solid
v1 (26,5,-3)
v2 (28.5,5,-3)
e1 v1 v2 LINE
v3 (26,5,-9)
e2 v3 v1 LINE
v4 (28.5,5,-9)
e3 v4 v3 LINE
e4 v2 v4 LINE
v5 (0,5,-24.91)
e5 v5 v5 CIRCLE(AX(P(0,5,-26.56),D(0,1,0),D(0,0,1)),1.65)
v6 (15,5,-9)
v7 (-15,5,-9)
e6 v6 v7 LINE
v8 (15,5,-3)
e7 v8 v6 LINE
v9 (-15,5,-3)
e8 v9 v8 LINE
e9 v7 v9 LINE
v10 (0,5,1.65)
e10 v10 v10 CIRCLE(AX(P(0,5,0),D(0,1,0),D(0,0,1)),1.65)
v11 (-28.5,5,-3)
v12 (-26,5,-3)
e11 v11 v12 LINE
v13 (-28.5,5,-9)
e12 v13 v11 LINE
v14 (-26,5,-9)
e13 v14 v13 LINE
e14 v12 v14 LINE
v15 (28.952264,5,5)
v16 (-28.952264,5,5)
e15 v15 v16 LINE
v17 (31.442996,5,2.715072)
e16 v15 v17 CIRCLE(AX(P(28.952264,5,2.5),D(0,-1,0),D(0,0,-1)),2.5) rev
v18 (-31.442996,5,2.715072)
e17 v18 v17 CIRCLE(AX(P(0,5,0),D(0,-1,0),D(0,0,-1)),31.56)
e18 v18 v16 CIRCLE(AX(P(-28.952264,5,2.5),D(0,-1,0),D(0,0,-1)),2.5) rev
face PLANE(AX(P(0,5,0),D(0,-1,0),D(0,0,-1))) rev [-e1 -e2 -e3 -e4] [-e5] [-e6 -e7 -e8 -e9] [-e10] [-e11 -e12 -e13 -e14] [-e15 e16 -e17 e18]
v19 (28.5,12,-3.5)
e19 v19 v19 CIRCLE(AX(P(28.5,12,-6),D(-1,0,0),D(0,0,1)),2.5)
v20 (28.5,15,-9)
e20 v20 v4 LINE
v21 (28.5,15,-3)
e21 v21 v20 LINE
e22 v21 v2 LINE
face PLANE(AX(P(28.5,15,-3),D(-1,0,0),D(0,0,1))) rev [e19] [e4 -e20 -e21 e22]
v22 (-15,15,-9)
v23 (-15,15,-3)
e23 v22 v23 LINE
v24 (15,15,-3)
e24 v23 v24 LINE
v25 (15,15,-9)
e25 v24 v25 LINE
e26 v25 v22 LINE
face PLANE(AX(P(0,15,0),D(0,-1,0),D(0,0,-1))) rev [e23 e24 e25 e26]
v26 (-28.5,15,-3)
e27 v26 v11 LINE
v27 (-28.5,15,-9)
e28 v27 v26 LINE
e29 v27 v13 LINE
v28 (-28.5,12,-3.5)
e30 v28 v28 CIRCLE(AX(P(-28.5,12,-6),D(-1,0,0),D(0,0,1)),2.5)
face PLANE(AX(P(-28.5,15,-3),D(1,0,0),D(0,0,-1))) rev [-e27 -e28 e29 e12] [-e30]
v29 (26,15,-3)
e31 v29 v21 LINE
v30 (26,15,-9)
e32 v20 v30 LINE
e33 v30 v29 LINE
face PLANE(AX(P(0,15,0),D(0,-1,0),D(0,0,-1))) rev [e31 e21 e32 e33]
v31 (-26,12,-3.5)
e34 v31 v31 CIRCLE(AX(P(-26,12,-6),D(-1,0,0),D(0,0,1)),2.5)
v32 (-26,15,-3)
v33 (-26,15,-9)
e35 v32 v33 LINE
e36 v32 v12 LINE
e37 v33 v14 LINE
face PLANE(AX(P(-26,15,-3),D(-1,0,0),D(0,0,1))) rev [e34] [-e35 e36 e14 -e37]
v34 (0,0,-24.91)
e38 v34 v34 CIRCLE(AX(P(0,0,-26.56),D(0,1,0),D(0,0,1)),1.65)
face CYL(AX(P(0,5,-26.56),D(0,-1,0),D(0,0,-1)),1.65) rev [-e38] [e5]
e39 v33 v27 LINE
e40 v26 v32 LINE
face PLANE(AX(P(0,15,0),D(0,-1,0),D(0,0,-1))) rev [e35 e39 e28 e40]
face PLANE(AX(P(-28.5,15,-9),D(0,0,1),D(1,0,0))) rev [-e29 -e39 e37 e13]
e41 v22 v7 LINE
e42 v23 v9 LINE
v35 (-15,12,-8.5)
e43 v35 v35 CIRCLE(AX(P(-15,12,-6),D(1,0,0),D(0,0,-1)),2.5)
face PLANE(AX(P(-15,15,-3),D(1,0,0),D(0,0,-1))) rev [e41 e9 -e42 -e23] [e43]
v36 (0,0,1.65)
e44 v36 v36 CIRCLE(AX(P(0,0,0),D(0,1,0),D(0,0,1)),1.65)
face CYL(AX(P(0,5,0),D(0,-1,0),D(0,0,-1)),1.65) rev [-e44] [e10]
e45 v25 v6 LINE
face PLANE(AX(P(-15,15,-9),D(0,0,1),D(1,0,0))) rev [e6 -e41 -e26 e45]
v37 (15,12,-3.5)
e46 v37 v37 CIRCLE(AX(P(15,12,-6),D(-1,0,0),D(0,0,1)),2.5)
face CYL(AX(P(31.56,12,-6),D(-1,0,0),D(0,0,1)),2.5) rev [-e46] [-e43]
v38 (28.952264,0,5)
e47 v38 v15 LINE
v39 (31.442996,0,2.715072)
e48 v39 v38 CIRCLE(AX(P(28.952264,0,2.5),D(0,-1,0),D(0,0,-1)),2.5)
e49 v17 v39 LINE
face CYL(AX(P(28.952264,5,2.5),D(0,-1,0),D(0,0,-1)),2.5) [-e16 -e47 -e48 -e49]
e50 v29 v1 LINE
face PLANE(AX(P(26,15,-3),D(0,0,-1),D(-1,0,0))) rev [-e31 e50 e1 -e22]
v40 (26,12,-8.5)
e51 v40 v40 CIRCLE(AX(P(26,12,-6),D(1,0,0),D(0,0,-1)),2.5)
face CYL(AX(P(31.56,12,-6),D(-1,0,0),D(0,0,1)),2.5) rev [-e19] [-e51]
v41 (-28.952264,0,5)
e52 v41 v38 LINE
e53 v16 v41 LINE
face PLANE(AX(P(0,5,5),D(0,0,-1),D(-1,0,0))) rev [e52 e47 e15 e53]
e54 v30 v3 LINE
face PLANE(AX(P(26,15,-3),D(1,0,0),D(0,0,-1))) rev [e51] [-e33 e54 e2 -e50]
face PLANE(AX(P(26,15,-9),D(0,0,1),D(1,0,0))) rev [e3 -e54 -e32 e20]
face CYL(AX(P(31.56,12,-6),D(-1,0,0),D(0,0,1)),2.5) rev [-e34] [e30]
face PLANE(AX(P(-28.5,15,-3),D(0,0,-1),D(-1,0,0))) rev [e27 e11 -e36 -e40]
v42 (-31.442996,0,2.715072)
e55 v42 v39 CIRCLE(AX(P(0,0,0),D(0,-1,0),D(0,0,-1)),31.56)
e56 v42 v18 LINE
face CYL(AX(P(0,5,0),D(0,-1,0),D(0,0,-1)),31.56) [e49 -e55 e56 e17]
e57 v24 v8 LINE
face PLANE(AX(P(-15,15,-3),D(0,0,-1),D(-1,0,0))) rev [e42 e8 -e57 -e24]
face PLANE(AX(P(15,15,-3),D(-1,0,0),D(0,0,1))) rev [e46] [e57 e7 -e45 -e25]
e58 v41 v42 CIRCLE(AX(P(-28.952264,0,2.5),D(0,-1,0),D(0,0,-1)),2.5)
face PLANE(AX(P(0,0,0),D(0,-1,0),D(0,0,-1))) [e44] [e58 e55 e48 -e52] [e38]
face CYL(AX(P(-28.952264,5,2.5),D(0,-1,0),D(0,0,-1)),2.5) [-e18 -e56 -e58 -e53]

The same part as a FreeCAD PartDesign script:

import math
import FreeCAD as App
import Part
import Sketcher

V = App.Vector


def edges_at(feature, points):
    """Names of the edges that pass closest to the given points."""
    edges = feature.Shape.Edges
    near = lambda p: min(range(len(edges)), key=lambda i: edges[i].distToShape(Part.Vertex(*p))[0])
    return sorted({f"Edge{near(p) + 1}" for p in points})

doc = App.newDocument("Part")
body = doc.addObject("PartDesign::Body", "Body")

sketch1 = body.newObject("Sketcher::SketchObject", "Sketch")
sketch1.AttachmentSupport = (doc.getObject("XZ_Plane"), [""])
sketch1.MapMode = "FlatFace"
sketch1.addGeometry(Part.ArcOfCircle(Part.Circle(V(0, 0, 0), V(0, 0, 1), 31.56), math.radians(170.884314), math.radians(369.115686)), False)
sketch1.addGeometry(Part.LineSegment(V(-31.161412, 5, 0), V(31.161412, 5, 0)), False)
sketch1.addGeometry(Part.Circle(V(0, 0, 0), V(0, 0, 1), 1.65), False)
sketch1.addGeometry(Part.Circle(V(0, -26.56, 0), V(0, 0, 1), 1.65), False)
sketch1.addConstraint(Sketcher.Constraint("Coincident", 0, 1, 1, 1))
sketch1.addConstraint(Sketcher.Constraint("Coincident", 1, 2, 0, 2))
sketch1.addConstraint(Sketcher.Constraint("Horizontal", 1))
sketch1.addConstraint(Sketcher.Constraint("Coincident", 0, 3, -1, 1))
sketch1.addConstraint(Sketcher.Constraint("Coincident", 2, 3, -1, 1))
sketch1.addConstraint(Sketcher.Constraint("Equal", 2, 3))
sketch1.addConstraint(Sketcher.Constraint("PointOnObject", 3, 3, -2))
sketch1.addConstraint(Sketcher.Constraint("Diameter", 2, 3.3))
sketch1.addConstraint(Sketcher.Constraint("Radius", 0, 31.56))
sketch1.addConstraint(Sketcher.Constraint("DistanceY", -1, 1, 0, 1, 5.0))
sketch1.addConstraint(Sketcher.Constraint("DistanceY", 3, 3, -1, 1, 26.56))
pad1 = body.newObject("PartDesign::Pad", "Pad")
pad1.Profile = sketch1
pad1.Length = 5
pad1.Reversed = True
doc.recompute()

fillet = body.newObject("PartDesign::Fillet", "Fillet")
fillet.Base = (pad1, edges_at(pad1, [(31.161, 2.5, 5), (-31.161, 2.5, 5)]))
fillet.Radius = 2.5

sketch2 = body.newObject("Sketcher::SketchObject", "Sketch001")
sketch2.AttachmentSupport = (doc.getObject("XZ_Plane"), [""])
sketch2.MapMode = "FlatFace"
sketch2.AttachmentOffset = App.Placement(V(0, 0, -5), App.Rotation())
sketch2.addGeometry(Part.LineSegment(V(-28.5, -9, 0), V(-28.5, -3, 0)), False)
sketch2.addGeometry(Part.LineSegment(V(-28.5, -3, 0), V(-26, -3, 0)), False)
sketch2.addGeometry(Part.LineSegment(V(-26, -3, 0), V(-26, -9, 0)), False)
sketch2.addGeometry(Part.LineSegment(V(-26, -9, 0), V(-28.5, -9, 0)), False)
sketch2.addGeometry(Part.LineSegment(V(26, -9, 0), V(26, -3, 0)), False)
sketch2.addGeometry(Part.LineSegment(V(26, -3, 0), V(28.5, -3, 0)), False)
sketch2.addGeometry(Part.LineSegment(V(28.5, -3, 0), V(28.5, -9, 0)), False)
sketch2.addGeometry(Part.LineSegment(V(28.5, -9, 0), V(26, -9, 0)), False)
sketch2.addGeometry(Part.LineSegment(V(-15, -9, 0), V(-15, -3, 0)), False)
sketch2.addGeometry(Part.LineSegment(V(-15, -3, 0), V(15, -3, 0)), False)
sketch2.addGeometry(Part.LineSegment(V(15, -3, 0), V(15, -9, 0)), False)
sketch2.addGeometry(Part.LineSegment(V(15, -9, 0), V(-15, -9, 0)), False)
sketch2.addConstraint(Sketcher.Constraint("Coincident", 0, 2, 1, 1))
sketch2.addConstraint(Sketcher.Constraint("Coincident", 1, 2, 2, 1))
sketch2.addConstraint(Sketcher.Constraint("Coincident", 2, 2, 3, 1))
sketch2.addConstraint(Sketcher.Constraint("Coincident", 3, 2, 0, 1))
sketch2.addConstraint(Sketcher.Constraint("Coincident", 4, 2, 5, 1))
sketch2.addConstraint(Sketcher.Constraint("Coincident", 5, 2, 6, 1))
sketch2.addConstraint(Sketcher.Constraint("Coincident", 6, 2, 7, 1))
sketch2.addConstraint(Sketcher.Constraint("Coincident", 7, 2, 4, 1))
sketch2.addConstraint(Sketcher.Constraint("Coincident", 8, 2, 9, 1))
sketch2.addConstraint(Sketcher.Constraint("Coincident", 9, 2, 10, 1))
sketch2.addConstraint(Sketcher.Constraint("Coincident", 10, 2, 11, 1))
sketch2.addConstraint(Sketcher.Constraint("Coincident", 11, 2, 8, 1))
sketch2.addConstraint(Sketcher.Constraint("Vertical", 0))
sketch2.addConstraint(Sketcher.Constraint("Horizontal", 1))
sketch2.addConstraint(Sketcher.Constraint("Vertical", 2))
sketch2.addConstraint(Sketcher.Constraint("Horizontal", 3))
sketch2.addConstraint(Sketcher.Constraint("Vertical", 4))
sketch2.addConstraint(Sketcher.Constraint("Horizontal", 5))
sketch2.addConstraint(Sketcher.Constraint("Vertical", 6))
sketch2.addConstraint(Sketcher.Constraint("Horizontal", 7))
sketch2.addConstraint(Sketcher.Constraint("Vertical", 8))
sketch2.addConstraint(Sketcher.Constraint("Horizontal", 9))
sketch2.addConstraint(Sketcher.Constraint("Vertical", 10))
sketch2.addConstraint(Sketcher.Constraint("Horizontal", 11))
sketch2.addConstraint(Sketcher.Constraint("Symmetric", 1, 2, 4, 2, -2))
sketch2.addConstraint(Sketcher.Constraint("Symmetric", 3, 2, 6, 2, -2))
sketch2.addConstraint(Sketcher.Constraint("Horizontal", 5, 2, 8, 2))
sketch2.addConstraint(Sketcher.Constraint("Horizontal", 7, 2, 10, 2))
sketch2.addConstraint(Sketcher.Constraint("DistanceX", 9, 1, 9, 2, 30.0))
sketch2.addConstraint(Sketcher.Constraint("DistanceY", 0, 1, 0, 2, 6.0))
sketch2.addConstraint(Sketcher.Constraint("DistanceX", 1, 1, 1, 2, 2.5))
sketch2.addConstraint(Sketcher.Constraint("DistanceY", 0, 2, -1, 1, 3.0))
sketch2.addConstraint(Sketcher.Constraint("DistanceX", 1, 2, -1, 1, 26.0))
sketch2.addConstraint(Sketcher.Constraint("DistanceX", 8, 2, -1, 1, 15.0))
pad2 = body.newObject("PartDesign::Pad", "Pad001")
pad2.Profile = sketch2
pad2.Length = 10
pad2.Reversed = True

sketch3 = body.newObject("Sketcher::SketchObject", "Sketch002")
sketch3.AttachmentSupport = (doc.getObject("YZ_Plane"), [""])
sketch3.MapMode = "FlatFace"
sketch3.AttachmentOffset = App.Placement(V(0, 0, -28.5), App.Rotation())
sketch3.addGeometry(Part.Circle(V(12, -6, 0), V(0, 0, 1), 2.5), False)
sketch3.addConstraint(Sketcher.Constraint("Diameter", 0, 5.0))
sketch3.addConstraint(Sketcher.Constraint("DistanceX", -1, 1, 0, 3, 12.0))
sketch3.addConstraint(Sketcher.Constraint("DistanceY", 0, 3, -1, 1, 6.0))
pocket1 = body.newObject("PartDesign::Pocket", "Pocket")
pocket1.Profile = sketch3
pocket1.Type = "ThroughAll"
pocket1.Reversed = True

doc.recompute()
